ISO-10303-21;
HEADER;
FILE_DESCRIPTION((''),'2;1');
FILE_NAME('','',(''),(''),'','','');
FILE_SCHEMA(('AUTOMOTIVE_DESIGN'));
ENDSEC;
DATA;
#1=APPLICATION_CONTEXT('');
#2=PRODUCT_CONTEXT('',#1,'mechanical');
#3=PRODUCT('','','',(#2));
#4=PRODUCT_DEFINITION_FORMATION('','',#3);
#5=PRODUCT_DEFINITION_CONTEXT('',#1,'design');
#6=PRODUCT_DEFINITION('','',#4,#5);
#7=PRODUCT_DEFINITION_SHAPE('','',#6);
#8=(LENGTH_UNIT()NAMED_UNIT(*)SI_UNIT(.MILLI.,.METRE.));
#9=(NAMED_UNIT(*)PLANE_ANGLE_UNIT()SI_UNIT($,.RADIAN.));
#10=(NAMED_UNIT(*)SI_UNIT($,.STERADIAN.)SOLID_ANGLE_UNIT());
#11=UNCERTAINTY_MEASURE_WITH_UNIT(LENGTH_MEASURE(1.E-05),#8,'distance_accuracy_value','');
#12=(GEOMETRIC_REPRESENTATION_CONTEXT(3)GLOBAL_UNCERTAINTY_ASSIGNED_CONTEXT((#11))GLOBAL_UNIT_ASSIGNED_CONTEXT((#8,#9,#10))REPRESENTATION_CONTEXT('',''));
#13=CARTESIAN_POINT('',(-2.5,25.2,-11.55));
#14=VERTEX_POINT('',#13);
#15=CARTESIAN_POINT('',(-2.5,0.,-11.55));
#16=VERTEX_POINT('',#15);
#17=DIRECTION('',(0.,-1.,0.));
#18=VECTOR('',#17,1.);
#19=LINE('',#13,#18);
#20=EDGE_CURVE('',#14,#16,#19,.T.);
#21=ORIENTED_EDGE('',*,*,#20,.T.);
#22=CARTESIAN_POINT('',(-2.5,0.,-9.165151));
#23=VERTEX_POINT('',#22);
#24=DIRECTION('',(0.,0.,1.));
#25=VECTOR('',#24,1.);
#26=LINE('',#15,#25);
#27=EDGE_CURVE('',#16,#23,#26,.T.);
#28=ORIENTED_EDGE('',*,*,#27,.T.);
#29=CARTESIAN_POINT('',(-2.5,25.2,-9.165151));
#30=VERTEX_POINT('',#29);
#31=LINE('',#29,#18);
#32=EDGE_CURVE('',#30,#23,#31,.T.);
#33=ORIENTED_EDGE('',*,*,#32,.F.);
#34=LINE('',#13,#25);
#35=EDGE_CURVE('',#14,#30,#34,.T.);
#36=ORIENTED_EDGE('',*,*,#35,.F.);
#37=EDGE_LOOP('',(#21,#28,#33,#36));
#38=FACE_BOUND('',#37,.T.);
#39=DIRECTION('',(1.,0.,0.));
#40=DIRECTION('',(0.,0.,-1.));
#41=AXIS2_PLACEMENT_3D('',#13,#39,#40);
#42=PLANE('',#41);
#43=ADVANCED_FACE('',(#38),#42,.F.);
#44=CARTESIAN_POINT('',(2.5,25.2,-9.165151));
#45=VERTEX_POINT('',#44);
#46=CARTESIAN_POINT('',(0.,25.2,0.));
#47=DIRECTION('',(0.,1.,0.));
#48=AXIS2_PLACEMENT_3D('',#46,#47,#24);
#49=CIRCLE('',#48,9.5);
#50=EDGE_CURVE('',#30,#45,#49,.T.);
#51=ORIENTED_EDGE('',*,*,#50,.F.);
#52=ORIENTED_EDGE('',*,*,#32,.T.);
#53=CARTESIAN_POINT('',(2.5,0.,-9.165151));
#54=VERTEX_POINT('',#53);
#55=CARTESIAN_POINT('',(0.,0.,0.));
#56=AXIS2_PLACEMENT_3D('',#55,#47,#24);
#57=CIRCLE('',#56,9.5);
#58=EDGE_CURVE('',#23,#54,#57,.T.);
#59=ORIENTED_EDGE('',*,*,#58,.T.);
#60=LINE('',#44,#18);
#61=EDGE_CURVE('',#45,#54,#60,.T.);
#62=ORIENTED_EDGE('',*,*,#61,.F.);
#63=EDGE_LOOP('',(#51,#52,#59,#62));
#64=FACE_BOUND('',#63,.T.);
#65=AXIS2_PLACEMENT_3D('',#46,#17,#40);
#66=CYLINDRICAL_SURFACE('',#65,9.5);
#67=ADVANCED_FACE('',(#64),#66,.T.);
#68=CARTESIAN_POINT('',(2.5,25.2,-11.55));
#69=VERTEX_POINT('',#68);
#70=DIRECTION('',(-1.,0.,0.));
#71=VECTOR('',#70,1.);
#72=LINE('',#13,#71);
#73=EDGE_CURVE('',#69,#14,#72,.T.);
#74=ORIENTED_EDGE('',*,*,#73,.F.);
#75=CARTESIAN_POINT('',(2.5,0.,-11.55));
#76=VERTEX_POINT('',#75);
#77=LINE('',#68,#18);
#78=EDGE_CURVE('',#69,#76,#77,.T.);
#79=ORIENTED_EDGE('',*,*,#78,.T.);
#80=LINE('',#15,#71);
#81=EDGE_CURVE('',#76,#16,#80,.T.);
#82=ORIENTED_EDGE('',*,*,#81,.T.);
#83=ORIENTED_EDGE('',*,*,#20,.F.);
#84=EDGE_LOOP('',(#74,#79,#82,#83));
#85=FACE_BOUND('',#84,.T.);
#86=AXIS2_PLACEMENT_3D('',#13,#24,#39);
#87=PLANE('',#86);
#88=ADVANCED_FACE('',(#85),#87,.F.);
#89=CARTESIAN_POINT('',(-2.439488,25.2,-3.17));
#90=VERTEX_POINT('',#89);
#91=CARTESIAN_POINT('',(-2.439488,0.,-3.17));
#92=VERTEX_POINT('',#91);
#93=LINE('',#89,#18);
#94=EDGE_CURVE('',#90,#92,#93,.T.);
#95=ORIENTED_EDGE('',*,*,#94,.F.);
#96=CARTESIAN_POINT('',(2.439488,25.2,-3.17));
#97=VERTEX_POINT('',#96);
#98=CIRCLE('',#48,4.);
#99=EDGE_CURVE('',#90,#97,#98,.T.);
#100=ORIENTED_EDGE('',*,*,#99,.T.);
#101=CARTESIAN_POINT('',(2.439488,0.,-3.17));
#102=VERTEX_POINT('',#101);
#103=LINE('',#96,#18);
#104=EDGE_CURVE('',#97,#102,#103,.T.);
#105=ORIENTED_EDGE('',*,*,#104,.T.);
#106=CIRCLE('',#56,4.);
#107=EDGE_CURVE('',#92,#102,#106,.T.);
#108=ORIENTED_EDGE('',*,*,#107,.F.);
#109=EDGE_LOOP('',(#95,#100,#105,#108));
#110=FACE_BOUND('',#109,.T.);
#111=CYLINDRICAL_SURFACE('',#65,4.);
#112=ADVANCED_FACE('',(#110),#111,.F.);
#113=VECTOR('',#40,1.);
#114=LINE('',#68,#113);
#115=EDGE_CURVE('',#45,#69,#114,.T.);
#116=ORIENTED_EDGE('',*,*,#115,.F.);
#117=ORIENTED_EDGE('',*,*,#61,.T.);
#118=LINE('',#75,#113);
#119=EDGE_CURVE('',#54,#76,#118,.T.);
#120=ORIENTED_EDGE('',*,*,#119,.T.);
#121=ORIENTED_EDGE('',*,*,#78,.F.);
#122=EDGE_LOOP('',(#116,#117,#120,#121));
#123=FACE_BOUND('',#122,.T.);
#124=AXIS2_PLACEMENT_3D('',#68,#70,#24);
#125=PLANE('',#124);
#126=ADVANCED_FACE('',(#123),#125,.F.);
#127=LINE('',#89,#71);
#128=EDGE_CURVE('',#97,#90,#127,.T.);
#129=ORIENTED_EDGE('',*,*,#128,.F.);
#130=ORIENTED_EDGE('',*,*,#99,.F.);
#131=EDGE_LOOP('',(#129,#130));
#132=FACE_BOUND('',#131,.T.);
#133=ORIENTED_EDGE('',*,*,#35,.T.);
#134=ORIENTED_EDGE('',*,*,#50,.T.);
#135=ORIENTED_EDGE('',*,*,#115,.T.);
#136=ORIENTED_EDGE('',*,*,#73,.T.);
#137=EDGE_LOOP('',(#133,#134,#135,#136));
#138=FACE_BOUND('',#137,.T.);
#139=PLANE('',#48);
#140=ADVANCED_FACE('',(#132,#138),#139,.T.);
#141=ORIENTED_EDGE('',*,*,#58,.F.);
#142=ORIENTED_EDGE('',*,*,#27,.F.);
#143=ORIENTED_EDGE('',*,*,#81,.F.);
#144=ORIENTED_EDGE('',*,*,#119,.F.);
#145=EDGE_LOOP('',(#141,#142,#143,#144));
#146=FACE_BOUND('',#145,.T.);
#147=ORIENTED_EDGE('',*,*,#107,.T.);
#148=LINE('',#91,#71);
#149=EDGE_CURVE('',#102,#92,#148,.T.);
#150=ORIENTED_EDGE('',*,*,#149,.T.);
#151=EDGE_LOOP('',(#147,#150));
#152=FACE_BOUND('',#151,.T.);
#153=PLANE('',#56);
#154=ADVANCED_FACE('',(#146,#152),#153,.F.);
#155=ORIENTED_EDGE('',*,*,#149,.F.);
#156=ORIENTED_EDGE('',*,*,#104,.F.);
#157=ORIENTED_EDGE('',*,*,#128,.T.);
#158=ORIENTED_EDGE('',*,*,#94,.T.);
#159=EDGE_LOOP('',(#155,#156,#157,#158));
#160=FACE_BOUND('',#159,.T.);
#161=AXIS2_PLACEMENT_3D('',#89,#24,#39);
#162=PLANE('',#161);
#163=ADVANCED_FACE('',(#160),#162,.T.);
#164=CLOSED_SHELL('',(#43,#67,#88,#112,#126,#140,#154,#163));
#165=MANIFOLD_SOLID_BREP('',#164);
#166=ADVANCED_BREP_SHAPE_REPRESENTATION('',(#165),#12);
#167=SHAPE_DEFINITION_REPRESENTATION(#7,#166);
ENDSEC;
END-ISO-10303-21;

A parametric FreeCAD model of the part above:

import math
import FreeCAD as App
import Part
import Sketcher
from FreeCAD import Vector
Q = App.Units.Quantity

doc = App.newDocument("Part")
params = doc.addObject("Spreadsheet::Sheet", "Params")
for row, (alias, value) in enumerate([
    ("sketch1_radius", "4 mm"),
    ("sketch1_radius2", "9.5 mm"),
    ("sketch1_width", "5 mm"),
    ("pad1_length", "25.2 mm"),
], start=1):
    params.set(f"A{row}", alias)
    params.set(f"B{row}", "=" + value)
    params.setAlias(f"B{row}", alias)

body = doc.addObject("PartDesign::Body", "Body")

sketch1 = body.newObject("Sketcher::SketchObject", "Sketch")
sketch1.AttachmentSupport = (doc.getObject("XZ_Plane"), [""])
sketch1.MapMode = "FlatFace"
sketch1.addGeometry(Part.LineSegment(Vector(2.5, -11.6, 0), Vector(-2.5, -11.6, 0)), False)
sketch1.addGeometry(Part.LineSegment(Vector(-2.5, -11.6, 0), Vector(-2.5, -9.2, 0)), False)
sketch1.addGeometry(Part.ArcOfCircle(Part.Circle(Vector(0, 0, 0), Vector(0, 0, 1), 9.5), math.radians(-75), math.radians(255)), False)
sketch1.addGeometry(Part.LineSegment(Vector(2.5, -9.2, 0), Vector(2.5, -11.6, 0)), False)
sketch1.addGeometry(Part.LineSegment(Vector(-2.4, -3.2, 0), Vector(2.4, -3.2, 0)), False)
sketch1.addGeometry(Part.ArcOfCircle(Part.Circle(Vector(0, 0, 0), Vector(0, 0, 1), 4), math.radians(-52), math.radians(232)), False)
sketch1.addConstraint(Sketcher.Constraint("Coincident", 0, 2, 1, 1))
sketch1.addConstraint(Sketcher.Constraint("Coincident", 1, 2, 2, 2))
sketch1.addConstraint(Sketcher.Constraint("Coincident", 2, 1, 3, 1))
sketch1.addConstraint(Sketcher.Constraint("Coincident", 3, 2, 0, 1))
sketch1.addConstraint(Sketcher.Constraint("Coincident", 4, 1, 5, 2))
sketch1.addConstraint(Sketcher.Constraint("Coincident", 5, 1, 4, 2))
sketch1.addConstraint(Sketcher.Constraint("Horizontal", 0))
sketch1.addConstraint(Sketcher.Constraint("Vertical", 1))
sketch1.addConstraint(Sketcher.Constraint("Vertical", 3))
sketch1.addConstraint(Sketcher.Constraint("Horizontal", 4))
sketch1.addConstraint(Sketcher.Constraint("Coincident", 2, 3, -1, 1))
sketch1.addConstraint(Sketcher.Constraint("Coincident", 5, 3, -1, 1))
sketch1.addConstraint(Sketcher.Constraint("Horizontal", 1, 2, 2, 1))
sketch1.addConstraint(Sketcher.Constraint("Radius", 5, Q("4 mm")))
sketch1.addConstraint(Sketcher.Constraint("Radius", 2, Q("9.5 mm")))
sketch1.addConstraint(Sketcher.Constraint("DistanceX", 0, 2, 0, 1, Q("5 mm")))
sketch1.addConstraint(Sketcher.Constraint("DistanceY", 0, 2, -1, 1, Q("11.55 mm")))
sketch1.addConstraint(Sketcher.Constraint("DistanceY", 4, 1, -1, 1, Q("3.17 mm")))
sketch1.setExpression("Constraints[13]", "Params.sketch1_radius")
sketch1.setExpression("Constraints[14]", "Params.sketch1_radius2")
sketch1.setExpression("Constraints[15]", "Params.sketch1_width")
pad1 = body.newObject("PartDesign::Pad", "Pad")
pad1.Profile = sketch1
pad1.setExpression("Length", "Params.pad1_length")
pad1.Reversed = True

doc.recompute()
